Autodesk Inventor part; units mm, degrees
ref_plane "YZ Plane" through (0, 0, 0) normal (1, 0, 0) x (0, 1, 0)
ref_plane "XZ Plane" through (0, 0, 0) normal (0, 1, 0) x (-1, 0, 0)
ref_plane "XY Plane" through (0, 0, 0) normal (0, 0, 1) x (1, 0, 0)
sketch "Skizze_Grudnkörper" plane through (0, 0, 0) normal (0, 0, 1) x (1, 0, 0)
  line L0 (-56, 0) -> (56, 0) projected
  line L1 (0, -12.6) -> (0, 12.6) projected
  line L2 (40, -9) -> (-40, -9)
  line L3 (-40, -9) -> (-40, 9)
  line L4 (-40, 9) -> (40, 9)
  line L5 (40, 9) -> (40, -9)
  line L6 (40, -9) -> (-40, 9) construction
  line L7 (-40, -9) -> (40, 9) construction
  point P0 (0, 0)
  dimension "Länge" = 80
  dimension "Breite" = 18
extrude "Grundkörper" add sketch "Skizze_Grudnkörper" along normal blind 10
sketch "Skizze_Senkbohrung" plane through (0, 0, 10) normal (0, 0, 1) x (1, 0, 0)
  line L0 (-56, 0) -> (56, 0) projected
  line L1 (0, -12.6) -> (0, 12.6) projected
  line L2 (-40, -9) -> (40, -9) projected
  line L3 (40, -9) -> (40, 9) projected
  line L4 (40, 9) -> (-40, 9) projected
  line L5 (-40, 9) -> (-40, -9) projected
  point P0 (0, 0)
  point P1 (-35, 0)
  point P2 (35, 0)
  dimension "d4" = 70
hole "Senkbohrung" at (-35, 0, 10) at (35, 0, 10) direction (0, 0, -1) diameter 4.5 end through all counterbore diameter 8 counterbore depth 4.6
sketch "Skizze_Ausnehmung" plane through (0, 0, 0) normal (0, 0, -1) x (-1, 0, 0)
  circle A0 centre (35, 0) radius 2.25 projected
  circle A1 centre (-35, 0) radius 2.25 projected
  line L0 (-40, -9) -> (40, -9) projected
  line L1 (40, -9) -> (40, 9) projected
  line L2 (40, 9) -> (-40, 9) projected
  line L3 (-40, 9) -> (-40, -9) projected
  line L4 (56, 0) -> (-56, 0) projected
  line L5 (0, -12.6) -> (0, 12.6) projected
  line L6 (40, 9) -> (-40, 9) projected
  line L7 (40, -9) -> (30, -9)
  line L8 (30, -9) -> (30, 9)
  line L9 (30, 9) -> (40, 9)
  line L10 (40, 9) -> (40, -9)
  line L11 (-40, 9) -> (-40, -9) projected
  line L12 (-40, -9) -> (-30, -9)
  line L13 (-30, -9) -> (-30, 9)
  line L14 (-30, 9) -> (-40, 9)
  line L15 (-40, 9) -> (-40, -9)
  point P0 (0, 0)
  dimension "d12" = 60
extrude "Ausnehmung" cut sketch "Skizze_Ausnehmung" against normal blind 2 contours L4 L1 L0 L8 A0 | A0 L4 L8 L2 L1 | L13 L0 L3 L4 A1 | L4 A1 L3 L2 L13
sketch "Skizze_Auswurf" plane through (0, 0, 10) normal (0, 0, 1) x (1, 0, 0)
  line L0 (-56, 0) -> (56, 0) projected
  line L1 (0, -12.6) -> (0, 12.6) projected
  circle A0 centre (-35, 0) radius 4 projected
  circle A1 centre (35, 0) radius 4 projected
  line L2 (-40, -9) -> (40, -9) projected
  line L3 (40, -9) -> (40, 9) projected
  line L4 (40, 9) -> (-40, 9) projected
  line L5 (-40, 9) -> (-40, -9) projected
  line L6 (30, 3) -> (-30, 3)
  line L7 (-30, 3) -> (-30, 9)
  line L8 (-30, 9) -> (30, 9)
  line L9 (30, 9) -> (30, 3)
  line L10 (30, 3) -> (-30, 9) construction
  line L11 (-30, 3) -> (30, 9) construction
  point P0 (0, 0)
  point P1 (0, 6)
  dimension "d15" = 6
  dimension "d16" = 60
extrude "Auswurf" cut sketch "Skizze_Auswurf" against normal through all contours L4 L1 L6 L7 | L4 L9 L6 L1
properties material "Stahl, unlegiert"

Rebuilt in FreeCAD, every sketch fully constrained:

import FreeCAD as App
import Part
import Sketcher
from FreeCAD import Vector
Q = App.Units.Quantity


def add_polygon(sketch, points):
    """Adds a closed chain of lines whose ends are joined by coincident constraints."""
    first, n = sketch.GeometryCount, len(points)
    for a, b in zip(points, points[1:] + points[:1]):
        sketch.addGeometry(Part.LineSegment(App.Vector(*a, 0), App.Vector(*b, 0)), False)
    for i in range(n):
        sketch.addConstraint(Sketcher.Constraint("Coincident", first + i, 2, first + (i + 1) % n, 1))

doc = App.newDocument("Part")
body = doc.addObject("PartDesign::Body", "Body")

sketch1 = body.newObject("Sketcher::SketchObject", "Sketch")
sketch1.AttachmentSupport = (doc.getObject("XY_Plane"), [""])
sketch1.MapMode = "FlatFace"
add_polygon(sketch1, [(-40, 9), (-40, -9), (40, -9), (40, 9)])
sketch1.addConstraint(Sketcher.Constraint("Vertical", 0))
sketch1.addConstraint(Sketcher.Constraint("Horizontal", 1))
sketch1.addConstraint(Sketcher.Constraint("Vertical", 2))
sketch1.addConstraint(Sketcher.Constraint("Horizontal", 3))
sketch1.addConstraint(Sketcher.Constraint("Symmetric", 0, 2, 2, 2, -1, 1))
sketch1.addConstraint(Sketcher.Constraint("DistanceX", 1, 1, 1, 2, Q("80 mm")))
sketch1.addConstraint(Sketcher.Constraint("DistanceY", 0, 2, 0, 1, Q("18 mm")))
pad1 = body.newObject("PartDesign::Pad", "Pad")
pad1.Profile = sketch1
pad1.Length = 10

sketch2 = body.newObject("Sketcher::SketchObject", "Sketch001")
sketch2.AttachmentSupport = (doc.getObject("XY_Plane"), [""])
sketch2.MapMode = "FlatFace"
sketch2.AttachmentOffset = App.Placement(Vector(0, 0, 10), App.Rotation())
sketch2.addGeometry(Part.Circle(Vector(-35, 0, 0), Vector(0, 0, 1), 2.25), False)
sketch2.addGeometry(Part.Circle(Vector(35, 0, 0), Vector(0, 0, 1), 2.25), False)
sketch2.addConstraint(Sketcher.Constraint("Equal", 0, 1))
sketch2.addConstraint(Sketcher.Constraint("Symmetric", 0, 3, 1, 3, -1, 1))
sketch2.addConstraint(Sketcher.Constraint("PointOnObject", 0, 3, -1))
sketch2.addConstraint(Sketcher.Constraint("Diameter", 0, Q("4.5 mm")))
sketch2.addConstraint(Sketcher.Constraint("DistanceX", 0, 3, -1, 1, Q("35 mm")))
doc.recompute()
hole = body.newObject("PartDesign::Hole", "Hole")
hole.Profile = sketch2
hole.ThreadType = "None"
hole.Diameter = 4.5
hole.DepthType = "ThroughAll"
hole.HoleCutType = "Counterbore"
hole.HoleCutDiameter = 8
hole.HoleCutDepth = 4.6

sketch3 = body.newObject("Sketcher::SketchObject", "Sketch002")
sketch3.AttachmentSupport = (doc.getObject("XY_Plane"), [""])
sketch3.MapMode = "FlatFace"
add_polygon(sketch3, [(-40, -9), (-40, 9), (-30, 9), (-30, -9)])
sketch3.addGeometry(Part.Circle(Vector(-35, 0, 0), Vector(0, 0, 1), 2.25), False)
add_polygon(sketch3, [(30, -9), (30, 9), (40, 9), (40, -9)])
sketch3.addGeometry(Part.Circle(Vector(35, 0, 0), Vector(0, 0, 1), 2.25), False)
sketch3.addConstraint(Sketcher.Constraint("Vertical", 0))
sketch3.addConstraint(Sketcher.Constraint("Horizontal", 1))
sketch3.addConstraint(Sketcher.Constraint("Vertical", 2))
sketch3.addConstraint(Sketcher.Constraint("Horizontal", 3))
sketch3.addConstraint(Sketcher.Constraint("Vertical", 5))
sketch3.addConstraint(Sketcher.Constraint("Horizontal", 6))
sketch3.addConstraint(Sketcher.Constraint("Vertical", 7))
sketch3.addConstraint(Sketcher.Constraint("Horizontal", 8))
sketch3.addConstraint(Sketcher.Constraint("Equal", 4, 9))
sketch3.addConstraint(Sketcher.Constraint("Symmetric", 4, 3, 9, 3, -1, 1))
sketch3.addConstraint(Sketcher.Constraint("Symmetric", 2, 2, 5, 2, -1, 1))
sketch3.addConstraint(Sketcher.Constraint("Symmetric", 0, 2, 7, 2, -1, 1))
sketch3.addConstraint(Sketcher.Constraint("PointOnObject", 4, 3, -1))
sketch3.addConstraint(Sketcher.Constraint("Horizontal", 1, 2, 5, 2))
sketch3.addConstraint(Sketcher.Constraint("DistanceX", 1, 2, 5, 2, Q("60 mm")))
sketch3.addConstraint(Sketcher.Constraint("Diameter", 4, Q("4.5 mm")))
sketch3.addConstraint(Sketcher.Constraint("DistanceX", 1, 1, 1, 2, Q("10 mm")))
sketch3.addConstraint(Sketcher.Constraint("DistanceY", 0, 1, 0, 2, Q("18 mm")))
sketch3.addConstraint(Sketcher.Constraint("DistanceX", 4, 3, -1, 1, Q("35 mm")))
pocket1 = body.newObject("PartDesign::Pocket", "Pocket")
pocket1.Profile = sketch3
pocket1.Length = 2
pocket1.Reversed = True

sketch4 = body.newObject("Sketcher::SketchObject", "Sketch003")
sketch4.AttachmentSupport = (doc.getObject("XY_Plane"), [""])
sketch4.MapMode = "FlatFace"
sketch4.AttachmentOffset = App.Placement(Vector(0, 0, 10), App.Rotation())
add_polygon(sketch4, [(-30, 9), (-30, 3), (30, 3), (30, 9)])
sketch4.addConstraint(Sketcher.Constraint("Vertical", 0))
sketch4.addConstraint(Sketcher.Constraint("Horizontal", 1))
sketch4.addConstraint(Sketcher.Constraint("Vertical", 2))
sketch4.addConstraint(Sketcher.Constraint("Horizontal", 3))
sketch4.addConstraint(Sketcher.Constraint("DistanceX", 1, 1, 1, 2, Q("60 mm")))
sketch4.addConstraint(Sketcher.Constraint("DistanceY", 0, 2, 0, 1, Q("6 mm")))
sketch4.addConstraint(Sketcher.Constraint("DistanceX", 0, 2, -1, 1, Q("30 mm")))
sketch4.addConstraint(Sketcher.Constraint("DistanceY", -1, 1, 0, 2, Q("3 mm")))
pocket2 = body.newObject("PartDesign::Pocket", "Pocket001")
pocket2.Profile = sketch4
pocket2.Type = "ThroughAll"

doc.recompute()
